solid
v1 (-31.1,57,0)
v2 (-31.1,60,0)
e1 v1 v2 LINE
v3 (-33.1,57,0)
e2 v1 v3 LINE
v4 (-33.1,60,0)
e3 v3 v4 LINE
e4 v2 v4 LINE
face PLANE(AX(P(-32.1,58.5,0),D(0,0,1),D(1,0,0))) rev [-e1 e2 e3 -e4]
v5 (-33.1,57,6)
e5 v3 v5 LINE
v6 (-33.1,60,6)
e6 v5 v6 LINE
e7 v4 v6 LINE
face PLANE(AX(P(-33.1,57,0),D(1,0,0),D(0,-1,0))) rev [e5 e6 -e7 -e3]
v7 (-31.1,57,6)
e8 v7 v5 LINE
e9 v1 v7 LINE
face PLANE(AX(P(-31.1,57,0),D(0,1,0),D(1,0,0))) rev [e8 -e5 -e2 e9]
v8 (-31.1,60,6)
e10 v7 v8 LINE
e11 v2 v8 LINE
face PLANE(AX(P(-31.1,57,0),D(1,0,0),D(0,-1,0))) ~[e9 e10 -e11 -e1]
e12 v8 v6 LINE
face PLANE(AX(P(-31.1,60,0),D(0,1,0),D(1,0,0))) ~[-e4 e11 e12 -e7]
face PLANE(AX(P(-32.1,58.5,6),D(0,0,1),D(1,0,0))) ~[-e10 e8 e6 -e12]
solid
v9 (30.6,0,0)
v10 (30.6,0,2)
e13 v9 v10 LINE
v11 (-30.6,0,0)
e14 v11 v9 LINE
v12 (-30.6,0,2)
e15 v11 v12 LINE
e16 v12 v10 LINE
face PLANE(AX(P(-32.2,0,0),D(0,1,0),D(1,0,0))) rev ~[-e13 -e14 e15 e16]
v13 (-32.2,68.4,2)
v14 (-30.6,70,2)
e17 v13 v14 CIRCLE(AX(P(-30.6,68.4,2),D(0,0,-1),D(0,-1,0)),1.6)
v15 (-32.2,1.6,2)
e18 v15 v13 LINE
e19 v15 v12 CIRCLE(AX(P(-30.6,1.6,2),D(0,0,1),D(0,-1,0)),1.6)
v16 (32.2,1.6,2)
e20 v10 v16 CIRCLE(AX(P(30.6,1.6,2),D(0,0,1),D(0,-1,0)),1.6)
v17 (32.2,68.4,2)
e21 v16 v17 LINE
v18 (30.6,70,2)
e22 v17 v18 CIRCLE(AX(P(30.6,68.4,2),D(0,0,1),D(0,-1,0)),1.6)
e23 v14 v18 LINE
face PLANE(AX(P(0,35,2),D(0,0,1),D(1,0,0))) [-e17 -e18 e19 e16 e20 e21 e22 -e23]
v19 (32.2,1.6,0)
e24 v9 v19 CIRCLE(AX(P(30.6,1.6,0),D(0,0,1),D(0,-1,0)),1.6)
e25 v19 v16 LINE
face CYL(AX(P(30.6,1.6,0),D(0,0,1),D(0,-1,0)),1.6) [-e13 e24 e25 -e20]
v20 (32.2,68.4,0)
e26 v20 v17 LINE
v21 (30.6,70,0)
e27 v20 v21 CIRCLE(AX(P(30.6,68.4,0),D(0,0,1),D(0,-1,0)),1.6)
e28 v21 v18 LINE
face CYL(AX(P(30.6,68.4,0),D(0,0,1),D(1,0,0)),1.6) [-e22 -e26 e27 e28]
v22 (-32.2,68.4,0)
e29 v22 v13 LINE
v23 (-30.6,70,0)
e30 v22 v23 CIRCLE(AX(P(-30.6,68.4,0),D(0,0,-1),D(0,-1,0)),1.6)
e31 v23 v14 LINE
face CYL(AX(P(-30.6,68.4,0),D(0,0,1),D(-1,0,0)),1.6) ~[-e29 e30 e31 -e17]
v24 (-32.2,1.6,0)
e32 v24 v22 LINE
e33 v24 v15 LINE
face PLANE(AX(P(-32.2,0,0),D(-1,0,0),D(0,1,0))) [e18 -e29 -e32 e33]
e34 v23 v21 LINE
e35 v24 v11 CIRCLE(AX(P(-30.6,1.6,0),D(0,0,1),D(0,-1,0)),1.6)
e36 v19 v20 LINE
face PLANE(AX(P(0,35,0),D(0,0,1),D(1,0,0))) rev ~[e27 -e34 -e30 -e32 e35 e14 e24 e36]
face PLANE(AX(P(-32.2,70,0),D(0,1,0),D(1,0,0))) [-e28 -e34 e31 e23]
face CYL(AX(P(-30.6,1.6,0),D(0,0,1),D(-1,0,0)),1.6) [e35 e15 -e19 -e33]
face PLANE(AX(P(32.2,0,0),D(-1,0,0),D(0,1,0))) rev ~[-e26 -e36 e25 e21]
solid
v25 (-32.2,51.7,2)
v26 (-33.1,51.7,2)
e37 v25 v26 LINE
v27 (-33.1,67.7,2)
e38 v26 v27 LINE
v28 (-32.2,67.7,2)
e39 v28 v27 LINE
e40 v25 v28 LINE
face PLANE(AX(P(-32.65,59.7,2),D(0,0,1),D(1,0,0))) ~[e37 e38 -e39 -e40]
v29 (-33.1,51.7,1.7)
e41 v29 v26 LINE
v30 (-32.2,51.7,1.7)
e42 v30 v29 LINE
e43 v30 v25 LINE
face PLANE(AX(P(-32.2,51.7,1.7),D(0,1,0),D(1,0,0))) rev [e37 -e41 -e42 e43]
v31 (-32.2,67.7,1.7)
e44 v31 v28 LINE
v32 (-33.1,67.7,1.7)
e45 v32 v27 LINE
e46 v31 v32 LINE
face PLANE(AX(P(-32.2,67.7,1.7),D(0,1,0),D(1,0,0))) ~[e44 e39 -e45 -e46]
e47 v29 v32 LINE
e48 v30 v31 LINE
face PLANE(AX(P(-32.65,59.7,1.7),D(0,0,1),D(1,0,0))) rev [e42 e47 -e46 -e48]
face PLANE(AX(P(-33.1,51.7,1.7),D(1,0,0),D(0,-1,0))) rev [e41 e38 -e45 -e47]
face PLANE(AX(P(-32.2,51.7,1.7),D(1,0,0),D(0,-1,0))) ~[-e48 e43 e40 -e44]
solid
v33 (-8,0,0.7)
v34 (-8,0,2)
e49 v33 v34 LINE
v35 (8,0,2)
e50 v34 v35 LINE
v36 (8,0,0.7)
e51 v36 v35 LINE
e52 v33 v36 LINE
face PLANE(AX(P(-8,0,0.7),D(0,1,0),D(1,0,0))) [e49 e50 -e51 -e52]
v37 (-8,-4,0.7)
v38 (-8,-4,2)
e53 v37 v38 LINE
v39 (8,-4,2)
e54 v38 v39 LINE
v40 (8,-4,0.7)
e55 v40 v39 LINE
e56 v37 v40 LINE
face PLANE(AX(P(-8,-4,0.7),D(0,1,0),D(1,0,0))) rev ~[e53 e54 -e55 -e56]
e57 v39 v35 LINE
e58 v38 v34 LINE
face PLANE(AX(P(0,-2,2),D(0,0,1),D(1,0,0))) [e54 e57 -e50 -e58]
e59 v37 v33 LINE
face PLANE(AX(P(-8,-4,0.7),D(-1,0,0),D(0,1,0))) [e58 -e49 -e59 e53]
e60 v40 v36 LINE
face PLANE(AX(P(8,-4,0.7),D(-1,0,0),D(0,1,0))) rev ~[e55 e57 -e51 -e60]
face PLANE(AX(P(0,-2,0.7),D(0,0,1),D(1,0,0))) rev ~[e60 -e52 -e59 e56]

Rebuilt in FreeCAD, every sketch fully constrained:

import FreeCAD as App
import Part
import Sketcher

V = App.Vector


def edges_at(feature, points):
    """Names of the edges that pass closest to the given points."""
    edges = feature.Shape.Edges
    near = lambda p: min(range(len(edges)), key=lambda i: edges[i].distToShape(Part.Vertex(*p))[0])
    return sorted({f"Edge{near(p) + 1}" for p in points})

doc = App.newDocument("Part")
params = doc.addObject("Spreadsheet::Sheet", "Params")
for row, (alias, value) in enumerate([
    ("sketch1_width", "16 mm"),
    ("sketch1_height", "4 mm"),
    ("pad1_length", "1.3 mm"),
    ("sketch2_height", "70 mm"),
    ("sketch2_width", "64.4 mm"),
    ("pad2_length", "2 mm"),
    ("fillet_radius", "1.6 mm"),
    ("sketch3_height", "16 mm"),
    ("sketch3_width", "0.9 mm"),
    ("pad3_length", "0.3 mm"),
    ("sketch4_width", "2 mm"),
    ("sketch4_height", "3 mm"),
    ("pad4_length", "6 mm"),
], start=1):
    params.set(f"A{row}", alias)
    params.set(f"B{row}", "=" + value)
    params.setAlias(f"B{row}", alias)

body = doc.addObject("PartDesign::Body", "Body")

sketch1 = body.newObject("Sketcher::SketchObject", "Sketch")
sketch1.AttachmentSupport = (doc.getObject("XY_Plane"), [""])
sketch1.MapMode = "FlatFace"
sketch1.AttachmentOffset = App.Placement(V(0, 0, 0.7), App.Rotation())
sketch1.addGeometry([
    Part.LineSegment(V(-8, 0, 0), V(-8, -4, 0)),
    Part.LineSegment(V(-8, -4, 0), V(8, -4, 0)),
    Part.LineSegment(V(8, -4, 0), V(8, 0, 0)),
    Part.LineSegment(V(8, 0, 0), V(-8, 0, 0)),
], False)
sketch1.addConstraint([
    Sketcher.Constraint("Coincident", 0, 2, 1, 1),
    Sketcher.Constraint("Coincident", 1, 2, 2, 1),
    Sketcher.Constraint("Coincident", 2, 2, 3, 1),
    Sketcher.Constraint("Coincident", 3, 2, 0, 1),
    Sketcher.Constraint("Vertical", 0),
    Sketcher.Constraint("Horizontal", 1),
    Sketcher.Constraint("Vertical", 2),
    Sketcher.Constraint("Horizontal", 3),
    Sketcher.Constraint("Symmetric", 2, 2, 3, 2, -1, 1),
    Sketcher.Constraint("DistanceX", 1, 1, 1, 2, 16.0),
    Sketcher.Constraint("DistanceY", 0, 2, 0, 1, 4.0),
])
sketch1.setExpression("Constraints[9]", "Params.sketch1_width")
sketch1.setExpression("Constraints[10]", "Params.sketch1_height")
pad1 = body.newObject("PartDesign::Pad", "Pad")
pad1.Profile = sketch1
pad1.setExpression("Length", "Params.pad1_length")
body2 = doc.addObject("PartDesign::Body", "Body001")

sketch2 = body2.newObject("Sketcher::SketchObject", "Sketch001")
sketch2.AttachmentSupport = (doc.getObject("XY_Plane001"), [""])
sketch2.MapMode = "FlatFace"
sketch2.addGeometry([
    Part.LineSegment(V(-32, 70, 0), V(-32, 0, 0)),
    Part.LineSegment(V(-32, 0, 0), V(32, 0, 0)),
    Part.LineSegment(V(32, 0, 0), V(32, 70, 0)),
    Part.LineSegment(V(32, 70, 0), V(-32, 70, 0)),
], False)
sketch2.addConstraint([
    Sketcher.Constraint("Coincident", 0, 2, 1, 1),
    Sketcher.Constraint("Coincident", 1, 2, 2, 1),
    Sketcher.Constraint("Coincident", 2, 2, 3, 1),
    Sketcher.Constraint("Coincident", 3, 2, 0, 1),
    Sketcher.Constraint("Vertical", 0),
    Sketcher.Constraint("Horizontal", 1),
    Sketcher.Constraint("Vertical", 2),
    Sketcher.Constraint("Horizontal", 3),
    Sketcher.Constraint("Symmetric", 0, 2, 1, 2, -1, 1),
    Sketcher.Constraint("DistanceY", 0, 2, 0, 1, 70.0),
    Sketcher.Constraint("DistanceX", 1, 1, 1, 2, 64.4),
])
sketch2.setExpression("Constraints[9]", "Params.sketch2_height")
sketch2.setExpression("Constraints[10]", "Params.sketch2_width")
pad2 = body2.newObject("PartDesign::Pad", "Pad001")
pad2.Profile = sketch2
pad2.setExpression("Length", "Params.pad2_length")
doc.recompute()

fillet = body2.newObject("PartDesign::Fillet", "Fillet")
fillet.Base = (pad2, edges_at(pad2, [
    (-32.2, 0, 1),
    (-32.2, 70, 1),
    (32.2, 0, 1),
    (32.2, 70, 1),
]))
fillet.setExpression("Radius", "Params.fillet_radius")
body3 = doc.addObject("PartDesign::Body", "Body002")

sketch3 = body3.newObject("Sketcher::SketchObject", "Sketch002")
sketch3.AttachmentSupport = (doc.getObject("XY_Plane002"), [""])
sketch3.MapMode = "FlatFace"
sketch3.AttachmentOffset = App.Placement(V(0, 0, 1.7), App.Rotation())
sketch3.addGeometry([
    Part.LineSegment(V(32.2, 67.7, 0), V(32.2, 51.7, 0)),
    Part.LineSegment(V(32.2, 51.7, 0), V(33.1, 51.7, 0)),
    Part.LineSegment(V(33.1, 51.7, 0), V(33.1, 67.7, 0)),
    Part.LineSegment(V(33.1, 67.7, 0), V(32.2, 67.7, 0)),
], False)
sketch3.addConstraint([
    Sketcher.Constraint("Coincident", 0, 2, 1, 1),
    Sketcher.Constraint("Coincident", 1, 2, 2, 1),
    Sketcher.Constraint("Coincident", 2, 2, 3, 1),
    Sketcher.Constraint("Coincident", 3, 2, 0, 1),
    Sketcher.Constraint("Vertical", 0),
    Sketcher.Constraint("Horizontal", 1),
    Sketcher.Constraint("Vertical", 2),
    Sketcher.Constraint("Horizontal", 3),
    Sketcher.Constraint("DistanceY", 0, 2, 0, 1, 16.0),
    Sketcher.Constraint("DistanceX", 1, 1, 1, 2, 0.9),
    Sketcher.Constraint("DistanceX", -1, 1, 0, 2, 32.2),
    Sketcher.Constraint("DistanceY", -1, 1, 0, 2, 51.7),
])
sketch3.setExpression("Constraints[8]", "Params.sketch3_height")
sketch3.setExpression("Constraints[9]", "Params.sketch3_width")
pad3 = body3.newObject("PartDesign::Pad", "Pad002")
pad3.Profile = sketch3
pad3.setExpression("Length", "Params.pad3_length")
body4 = doc.addObject("PartDesign::Body", "Body003")
doc.recompute()

mirroring = doc.addObject("Part::Mirroring", "Mirroring")
mirroring.Source = body3
mirroring.Base = V(0, 0, 0)
mirroring.Normal = V(1, 0, 0)
body4.BaseFeature = mirroring
doc.recompute()
body5 = doc.addObject("PartDesign::Body", "Body004")

sketch4 = body5.newObject("Sketcher::SketchObject", "Sketch003")
sketch4.AttachmentSupport = (doc.getObject("XY_Plane004"), [""])
sketch4.MapMode = "FlatFace"
sketch4.addGeometry([
    Part.LineSegment(V(31.1, 60, 0), V(31.1, 57, 0)),
    Part.LineSegment(V(31.1, 57, 0), V(33.1, 57, 0)),
    Part.LineSegment(V(33.1, 57, 0), V(33.1, 60, 0)),
    Part.LineSegment(V(33.1, 60, 0), V(31.1, 60, 0)),
], False)
sketch4.addConstraint([
    Sketcher.Constraint("Coincident", 0, 2, 1, 1),
    Sketcher.Constraint("Coincident", 1, 2, 2, 1),
    Sketcher.Constraint("Coincident", 2, 2, 3, 1),
    Sketcher.Constraint("Coincident", 3, 2, 0, 1),
    Sketcher.Constraint("Vertical", 0),
    Sketcher.Constraint("Horizontal", 1),
    Sketcher.Constraint("Vertical", 2),
    Sketcher.Constraint("Horizontal", 3),
    Sketcher.Constraint("DistanceX", 1, 1, 1, 2, 2.0),
    Sketcher.Constraint("DistanceY", 0, 2, 0, 1, 3.0),
    Sketcher.Constraint("DistanceY", -1, 1, 0, 2, 57.0),
    Sketcher.Constraint("DistanceX", -1, 1, 0, 2, 31.1),
])
sketch4.setExpression("Constraints[8]", "Params.sketch4_width")
sketch4.setExpression("Constraints[9]", "Params.sketch4_height")
pad4 = body5.newObject("PartDesign::Pad", "Pad003")
pad4.Profile = sketch4
pad4.setExpression("Length", "Params.pad4_length")
body6 = doc.addObject("PartDesign::Body", "Body005")
doc.recompute()

mirroring2 = doc.addObject("Part::Mirroring", "Mirroring001")
mirroring2.Source = body5
mirroring2.Base = V(0, 0, 0)
mirroring2.Normal = V(1, 0, 0)
body6.BaseFeature = mirroring2
doc.recompute()
body3.Visibility = False
body5.Visibility = False
mirroring.Visibility = False
mirroring2.Visibility = False

doc.recompute()
